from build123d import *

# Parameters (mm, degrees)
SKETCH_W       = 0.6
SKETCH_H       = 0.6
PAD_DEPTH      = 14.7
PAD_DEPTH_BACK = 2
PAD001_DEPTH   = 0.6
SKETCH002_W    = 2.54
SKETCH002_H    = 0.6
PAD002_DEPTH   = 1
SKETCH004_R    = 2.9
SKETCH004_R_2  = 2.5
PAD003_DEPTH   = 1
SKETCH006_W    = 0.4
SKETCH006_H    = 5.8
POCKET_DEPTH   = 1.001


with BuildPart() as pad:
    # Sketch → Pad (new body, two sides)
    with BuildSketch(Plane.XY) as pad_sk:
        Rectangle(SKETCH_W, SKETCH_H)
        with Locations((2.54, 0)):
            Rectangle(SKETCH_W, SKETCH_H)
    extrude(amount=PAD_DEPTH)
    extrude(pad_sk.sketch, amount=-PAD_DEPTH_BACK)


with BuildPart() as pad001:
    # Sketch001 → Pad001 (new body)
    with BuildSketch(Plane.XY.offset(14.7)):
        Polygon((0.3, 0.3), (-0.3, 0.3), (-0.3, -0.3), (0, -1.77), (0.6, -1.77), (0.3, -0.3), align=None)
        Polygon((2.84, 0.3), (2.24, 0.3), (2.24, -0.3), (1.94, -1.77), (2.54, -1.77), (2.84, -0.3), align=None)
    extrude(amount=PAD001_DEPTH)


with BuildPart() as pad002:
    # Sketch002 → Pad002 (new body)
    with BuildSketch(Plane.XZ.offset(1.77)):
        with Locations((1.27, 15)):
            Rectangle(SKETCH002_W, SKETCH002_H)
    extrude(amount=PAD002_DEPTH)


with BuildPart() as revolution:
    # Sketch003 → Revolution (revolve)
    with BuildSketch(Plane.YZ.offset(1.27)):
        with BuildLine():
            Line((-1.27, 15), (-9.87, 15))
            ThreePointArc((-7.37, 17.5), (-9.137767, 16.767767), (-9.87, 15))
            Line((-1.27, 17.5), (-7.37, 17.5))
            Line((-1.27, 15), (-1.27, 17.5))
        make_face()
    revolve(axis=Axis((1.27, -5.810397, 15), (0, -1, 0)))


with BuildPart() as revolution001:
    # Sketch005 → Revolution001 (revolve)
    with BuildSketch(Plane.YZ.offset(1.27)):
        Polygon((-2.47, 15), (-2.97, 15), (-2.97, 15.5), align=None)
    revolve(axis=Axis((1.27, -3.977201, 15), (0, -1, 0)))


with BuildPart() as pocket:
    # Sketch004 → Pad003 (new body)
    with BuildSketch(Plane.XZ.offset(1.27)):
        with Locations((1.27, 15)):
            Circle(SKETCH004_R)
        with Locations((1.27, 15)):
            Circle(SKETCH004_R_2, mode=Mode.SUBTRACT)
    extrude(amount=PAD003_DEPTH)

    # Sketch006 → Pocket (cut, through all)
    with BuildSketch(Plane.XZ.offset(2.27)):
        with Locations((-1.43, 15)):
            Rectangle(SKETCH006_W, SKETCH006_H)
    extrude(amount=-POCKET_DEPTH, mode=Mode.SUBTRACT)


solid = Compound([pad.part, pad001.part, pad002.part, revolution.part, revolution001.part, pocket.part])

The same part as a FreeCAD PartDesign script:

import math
import FreeCAD as App
import Part
import Sketcher
from FreeCAD import Vector


def add_polygon(sketch, points):
    """Adds a closed chain of lines whose ends are joined by coincident constraints."""
    first, n = sketch.GeometryCount, len(points)
    for a, b in zip(points, points[1:] + points[:1]):
        sketch.addGeometry(Part.LineSegment(App.Vector(*a, 0), App.Vector(*b, 0)), False)
    for i in range(n):
        sketch.addConstraint(Sketcher.Constraint("Coincident", first + i, 2, first + (i + 1) % n, 1))

doc = App.newDocument("Part")
body = doc.addObject("PartDesign::Body", "Body")
body.AllowCompound = True

sketch1 = body.newObject("Sketcher::SketchObject", "Sketch")
sketch1.AttachmentSupport = (doc.getObject("XY_Plane"), [""])
sketch1.MapMode = "FlatFace"
add_polygon(sketch1, [(-0.3, 0.3), (-0.3, -0.3), (0.3, -0.3), (0.3, 0.3)])
add_polygon(sketch1, [(2.24, 0.3), (2.24, -0.3), (2.84, -0.3), (2.84, 0.3)])
sketch1.addConstraint(Sketcher.Constraint("Vertical", 0))
sketch1.addConstraint(Sketcher.Constraint("Horizontal", 1))
sketch1.addConstraint(Sketcher.Constraint("Vertical", 2))
sketch1.addConstraint(Sketcher.Constraint("Horizontal", 3))
sketch1.addConstraint(Sketcher.Constraint("Vertical", 4))
sketch1.addConstraint(Sketcher.Constraint("Horizontal", 5))
sketch1.addConstraint(Sketcher.Constraint("Vertical", 6))
sketch1.addConstraint(Sketcher.Constraint("Horizontal", 7))
sketch1.addConstraint(Sketcher.Constraint("Symmetric", 0, 2, 2, 2, -1, 1))
sketch1.addConstraint(Sketcher.Constraint("Horizontal", 1, 2, 4, 2))
sketch1.addConstraint(Sketcher.Constraint("Horizontal", 3, 2, 6, 2))
sketch1.addConstraint(Sketcher.Constraint("Equal", 3, 5))
sketch1.addConstraint(Sketcher.Constraint("Equal", 7, 0))
sketch1.addConstraint(Sketcher.Constraint("DistanceX", 1, 1, 1, 2, 0.6))
sketch1.addConstraint(Sketcher.Constraint("DistanceX", -1, 1, 4, 2, 2.24))
pad1 = body.newObject("PartDesign::Pad", "Pad")
pad1.Profile = sketch1
pad1.Type = "TwoLengths"
pad1.Length = 14.7
pad1.Length2 = 2
body2 = doc.addObject("PartDesign::Body", "Body001")
body2.AllowCompound = True

sketch2 = body2.newObject("Sketcher::SketchObject", "Sketch001")
sketch2.AttachmentSupport = (doc.getObject("XY_Plane001"), [""])
sketch2.MapMode = "FlatFace"
sketch2.AttachmentOffset = App.Placement(Vector(0, 0, 14.7), App.Rotation())
add_polygon(sketch2, [(0.3, 0.3), (-0.3, 0.3), (-0.3, -0.3), (0, -1.77), (0.6, -1.77), (0.3, -0.3)])
add_polygon(sketch2, [(2.84, 0.3), (2.24, 0.3), (2.24, -0.3), (1.94, -1.77), (2.54, -1.77), (2.84, -0.3)])
sketch2.addConstraint(Sketcher.Constraint("Horizontal", 0))
sketch2.addConstraint(Sketcher.Constraint("Vertical", 1))
sketch2.addConstraint(Sketcher.Constraint("Horizontal", 3))
sketch2.addConstraint(Sketcher.Constraint("Vertical", 5))
sketch2.addConstraint(Sketcher.Constraint("Horizontal", 6))
sketch2.addConstraint(Sketcher.Constraint("Vertical", 7))
sketch2.addConstraint(Sketcher.Constraint("Horizontal", 9))
sketch2.addConstraint(Sketcher.Constraint("Vertical", 11))
sketch2.addConstraint(Sketcher.Constraint("Symmetric", 0, 2, 4, 2, -1, 1))
sketch2.addConstraint(Sketcher.Constraint("PointOnObject", 2, 2, -2))
sketch2.addConstraint(Sketcher.Constraint("Parallel", 2, 4))
sketch2.addConstraint(Sketcher.Constraint("Parallel", 8, 10))
sketch2.addConstraint(Sketcher.Constraint("Horizontal", 1, 2, 4, 2))
sketch2.addConstraint(Sketcher.Constraint("Horizontal", 5, 2, 6, 2))
sketch2.addConstraint(Sketcher.Constraint("Horizontal", 4, 2, 7, 2))
sketch2.addConstraint(Sketcher.Constraint("Horizontal", 3, 2, 8, 2))
sketch2.addConstraint(Sketcher.Constraint("Horizontal", 7, 2, 10, 2))
sketch2.addConstraint(Sketcher.Constraint("Equal", 3, 6))
sketch2.addConstraint(Sketcher.Constraint("Equal", 9, 1))
sketch2.addConstraint(Sketcher.Constraint("Equal", 4, 8))
sketch2.addConstraint(Sketcher.Constraint("DistanceX", 0, 2, 0, 1, 0.6))
sketch2.addConstraint(Sketcher.Constraint("DistanceY", 2, 2, -1, 1, 1.77))
sketch2.addConstraint(Sketcher.Constraint("DistanceX", -1, 1, 6, 2, 2.24))
pad2 = body2.newObject("PartDesign::Pad", "Pad001")
pad2.Profile = sketch2
pad2.Length = 0.6
body3 = doc.addObject("PartDesign::Body", "Body002")

sketch3 = body3.newObject("Sketcher::SketchObject", "Sketch002")
sketch3.AttachmentSupport = (doc.getObject("XZ_Plane002"), [""])
sketch3.MapMode = "FlatFace"
sketch3.AttachmentOffset = App.Placement(Vector(0, 0, 1.77), App.Rotation())
add_polygon(sketch3, [(0, 15.3), (0, 14.7), (2.54, 14.7), (2.54, 15.3)])
sketch3.addConstraint(Sketcher.Constraint("Vertical", 0))
sketch3.addConstraint(Sketcher.Constraint("Horizontal", 1))
sketch3.addConstraint(Sketcher.Constraint("Vertical", 2))
sketch3.addConstraint(Sketcher.Constraint("Horizontal", 3))
sketch3.addConstraint(Sketcher.Constraint("PointOnObject", 0, 2, -2))
sketch3.addConstraint(Sketcher.Constraint("DistanceY", 0, 2, 0, 1, 0.6))
sketch3.addConstraint(Sketcher.Constraint("DistanceX", 1, 1, 1, 2, 2.54))
sketch3.addConstraint(Sketcher.Constraint("DistanceY", -1, 1, 0, 2, 14.7))
pad3 = body3.newObject("PartDesign::Pad", "Pad002")
pad3.Profile = sketch3
pad3.Length = 1
body4 = doc.addObject("PartDesign::Body", "Body003")

sketch4 = body4.newObject("Sketcher::SketchObject", "Sketch003")
sketch4.AttachmentSupport = (doc.getObject("YZ_Plane003"), [""])
sketch4.MapMode = "FlatFace"
sketch4.AttachmentOffset = App.Placement(Vector(0, 0, 1.27), App.Rotation())
sketch4.addGeometry(Part.LineSegment(Vector(-9.87, 15, 0), Vector(-1.27, 15, 0)), False)
sketch4.addGeometry(Part.LineSegment(Vector(-1.27, 15, 0), Vector(-1.27, 17.5, 0)), False)
sketch4.addGeometry(Part.LineSegment(Vector(-1.27, 17.5, 0), Vector(-7.37, 17.5, 0)), False)
sketch4.addGeometry(Part.ArcOfCircle(Part.Circle(Vector(-7.37, 15, 0), Vector(0, 0, 1), 2.5), math.radians(89.999996), math.radians(180.000004)), False)
sketch4.addGeometry(Part.LineSegment(Vector(-1.27, 15, 0), Vector(-9.87, 15, 0)), True)
sketch4.addConstraint(Sketcher.Constraint("Coincident", 0, 2, 1, 1))
sketch4.addConstraint(Sketcher.Constraint("Coincident", 1, 2, 2, 1))
sketch4.addConstraint(Sketcher.Constraint("Tangent", 2, 2, 3, 1))
sketch4.addConstraint(Sketcher.Constraint("Coincident", 3, 2, 0, 1))
sketch4.addConstraint(Sketcher.Constraint("Horizontal", 0))
sketch4.addConstraint(Sketcher.Constraint("Vertical", 1))
sketch4.addConstraint(Sketcher.Constraint("Horizontal", 2))
sketch4.addConstraint(Sketcher.Constraint("Horizontal", 4))
sketch4.addConstraint(Sketcher.Constraint("Coincident", 4, 1, 0, 2))
sketch4.addConstraint(Sketcher.Constraint("Horizontal", 3, 3, 0, 2))
sketch4.addConstraint(Sketcher.Constraint("Equal", 0, 4))
sketch4.addConstraint(Sketcher.Constraint("Radius", 3, 2.5))
sketch4.addConstraint(Sketcher.Constraint("DistanceX", 0, 1, 0, 2, 8.6))
sketch4.addConstraint(Sketcher.Constraint("DistanceY", -1, 1, 3, 3, 15.0))
sketch4.addConstraint(Sketcher.Constraint("DistanceX", 3, 3, -1, 1, 7.37))
revolution = body4.newObject("PartDesign::Revolution", "Revolution")
revolution.Profile = sketch4
revolution.ReferenceAxis = (sketch4, ["Axis0"])
revolution.Angle = 360
body5 = doc.addObject("PartDesign::Body", "Body004")

sketch5 = body5.newObject("Sketcher::SketchObject", "Sketch004")
sketch5.AttachmentSupport = (doc.getObject("YZ_Plane004"), [""])
sketch5.MapMode = "FlatFace"
sketch5.AttachmentOffset = App.Placement(Vector(0, 0, 1.27), App.Rotation())
add_polygon(sketch5, [(-2.97, 15), (-2.47, 15), (-2.97, 15.5)])
sketch5.addGeometry(Part.LineSegment(Vector(-2.47, 15, 0), Vector(-2.97, 15, 0)), True)
sketch5.addConstraint(Sketcher.Constraint("Horizontal", 0))
sketch5.addConstraint(Sketcher.Constraint("Vertical", 2))
sketch5.addConstraint(Sketcher.Constraint("Horizontal", 3))
sketch5.addConstraint(Sketcher.Constraint("Coincident", 3, 1, 0, 2))
sketch5.addConstraint(Sketcher.Constraint("Vertical", 1, 2, 3, 2))
sketch5.addConstraint(Sketcher.Constraint("Equal", 3, 2))
sketch5.addConstraint(Sketcher.Constraint("DistanceX", 0, 1, 0, 2, 0.5))
sketch5.addConstraint(Sketcher.Constraint("DistanceY", -1, 1, 0, 2, 15.0))
sketch5.addConstraint(Sketcher.Constraint("DistanceX", 0, 2, -1, 1, 2.47))
revolution2 = body5.newObject("PartDesign::Revolution", "Revolution001")
revolution2.Profile = sketch5
revolution2.ReferenceAxis = (sketch5, ["Axis0"])
revolution2.Angle = 360
body6 = doc.addObject("PartDesign::Body", "Body005")

sketch6 = body6.newObject("Sketcher::SketchObject", "Sketch005")
sketch6.AttachmentSupport = (doc.getObject("XZ_Plane005"), [""])
sketch6.MapMode = "FlatFace"
sketch6.AttachmentOffset = App.Placement(Vector(0, 0, 1.27), App.Rotation())
sketch6.addGeometry(Part.Circle(Vector(1.27, 15, 0), Vector(0, 0, 1), 2.9), False)
sketch6.addGeometry(Part.Circle(Vector(1.27, 15, 0), Vector(0, 0, 1), 2.5), False)
sketch6.addConstraint(Sketcher.Constraint("Coincident", 1, 3, 0, 3))
sketch6.addConstraint(Sketcher.Constraint("Diameter", 1, 5.0))
sketch6.addConstraint(Sketcher.Constraint("Diameter", 0, 5.8))
sketch6.addConstraint(Sketcher.Constraint("DistanceY", -1, 1, 0, 3, 15.0))
sketch6.addConstraint(Sketcher.Constraint("DistanceX", -1, 1, 0, 3, 1.27))
pad4 = body6.newObject("PartDesign::Pad", "Pad003")
pad4.Profile = sketch6
pad4.Length = 1

sketch7 = body6.newObject("Sketcher::SketchObject", "Sketch006")
sketch7.AttachmentSupport = (doc.getObject("XZ_Plane005"), [""])
sketch7.MapMode = "FlatFace"
sketch7.AttachmentOffset = App.Placement(Vector(0, 0, 2.27), App.Rotation())
add_polygon(sketch7, [(-1.63, 17.9), (-1.63, 12.1), (-1.23, 12.1), (-1.23, 17.9)])
sketch7.addConstraint(Sketcher.Constraint("Vertical", 0))
sketch7.addConstraint(Sketcher.Constraint("Horizontal", 1))
sketch7.addConstraint(Sketcher.Constraint("Vertical", 2))
sketch7.addConstraint(Sketcher.Constraint("Horizontal", 3))
sketch7.addConstraint(Sketcher.Constraint("DistanceX", 1, 1, 1, 2, 0.4))
sketch7.addConstraint(Sketcher.Constraint("DistanceY", 0, 2, 0, 1, 5.8))
sketch7.addConstraint(Sketcher.Constraint("DistanceY", -1, 1, 0, 2, 12.1))
sketch7.addConstraint(Sketcher.Constraint("DistanceX", 0, 2, -1, 1, 1.63))
pocket1 = body6.newObject("PartDesign::Pocket", "Pocket")
pocket1.Profile = sketch7
pocket1.Type = "ThroughAll"

doc.recompute()
